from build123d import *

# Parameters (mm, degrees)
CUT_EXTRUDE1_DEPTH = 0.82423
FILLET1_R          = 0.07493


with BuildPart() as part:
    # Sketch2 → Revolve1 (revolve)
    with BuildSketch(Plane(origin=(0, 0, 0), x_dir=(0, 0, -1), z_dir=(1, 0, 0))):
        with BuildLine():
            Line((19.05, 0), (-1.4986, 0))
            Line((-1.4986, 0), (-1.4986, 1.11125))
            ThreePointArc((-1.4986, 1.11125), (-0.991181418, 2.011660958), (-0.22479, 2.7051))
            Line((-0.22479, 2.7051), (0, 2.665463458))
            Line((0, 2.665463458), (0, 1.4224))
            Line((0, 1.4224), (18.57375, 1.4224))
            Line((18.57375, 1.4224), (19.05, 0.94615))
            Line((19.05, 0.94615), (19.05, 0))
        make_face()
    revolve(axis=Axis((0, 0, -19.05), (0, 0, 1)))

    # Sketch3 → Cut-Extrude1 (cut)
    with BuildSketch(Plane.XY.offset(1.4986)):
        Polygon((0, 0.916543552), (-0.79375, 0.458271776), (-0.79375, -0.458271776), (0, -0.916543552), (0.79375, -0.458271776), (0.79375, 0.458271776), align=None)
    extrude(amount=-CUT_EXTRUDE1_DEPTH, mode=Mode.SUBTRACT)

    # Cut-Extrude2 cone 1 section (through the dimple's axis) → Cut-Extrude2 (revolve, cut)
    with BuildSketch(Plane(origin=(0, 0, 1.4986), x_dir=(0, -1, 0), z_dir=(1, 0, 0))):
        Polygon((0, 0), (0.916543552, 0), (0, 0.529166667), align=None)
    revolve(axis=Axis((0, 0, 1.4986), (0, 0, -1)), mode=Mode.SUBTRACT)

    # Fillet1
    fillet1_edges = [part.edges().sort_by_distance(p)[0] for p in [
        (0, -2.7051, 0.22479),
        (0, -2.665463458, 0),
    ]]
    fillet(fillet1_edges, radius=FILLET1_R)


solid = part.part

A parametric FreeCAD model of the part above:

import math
import FreeCAD as App
import Part
import Sketcher

V = App.Vector
Q = App.Units.Quantity


def edges_at(feature, points):
    """Names of the edges that pass closest to the given points."""
    edges = feature.Shape.Edges
    near = lambda p: min(range(len(edges)), key=lambda i: edges[i].distToShape(Part.Vertex(*p))[0])
    return sorted({f"Edge{near(p) + 1}" for p in points})

doc = App.newDocument("Part")
params = doc.addObject("Spreadsheet::Sheet", "Params")
for row, (alias, value) in enumerate([
    ("sketch1_height", "0.809 in"),
    ("revolution_angle", "360 deg"),
    ("pocket1_length", "0.82423 mm"),
    ("groove_angle", "360 deg"),
    ("fillet_radius", "0.07493 mm"),
], start=1):
    params.set(f"A{row}", alias)
    params.set(f"B{row}", "=" + value)
    params.setAlias(f"B{row}", alias)

body = doc.addObject("PartDesign::Body", "Body")

sketch1 = doc.addObject("Sketcher::SketchObject", "Sketch")
body.addObject(sketch1)
sketch1.AttachmentSupport = (doc.YZ_Plane, [""])
sketch1.MapMode = "FlatFace"
sketch1.addGeometry([
    Part.LineSegment(V(0, 1.5, 0), V(0, -19.05, 0)),
    Part.LineSegment(V(0, -19.05, 0), V(0.95, -19.05, 0)),
    Part.LineSegment(V(0.95, -19.05, 0), V(1.42, -18.57, 0)),
    Part.LineSegment(V(1.42, -18.57, 0), V(1.42, 0, 0)),
    Part.LineSegment(V(1.42, 0, 0), V(2.67, 0, 0)),
    Part.LineSegment(V(2.67, 0, 0), V(2.71, 0.22, 0)),
    Part.ArcOfCircle(Part.Circle(V(0, -1.53, 0), V(0, 0, 1), 3.22), math.radians(33), math.radians(70)),
    Part.LineSegment(V(1.11, 1.5, 0), V(0, 1.5, 0)),
], False)
sketch1.addConstraint([
    Sketcher.Constraint("Coincident", 0, 2, 1, 1),
    Sketcher.Constraint("Coincident", 1, 2, 2, 1),
    Sketcher.Constraint("Coincident", 2, 2, 3, 1),
    Sketcher.Constraint("Coincident", 3, 2, 4, 1),
    Sketcher.Constraint("Coincident", 4, 2, 5, 1),
    Sketcher.Constraint("Coincident", 5, 2, 6, 1),
    Sketcher.Constraint("Coincident", 6, 2, 7, 1),
    Sketcher.Constraint("Coincident", 7, 2, 0, 1),
    Sketcher.Constraint("Vertical", 0),
    Sketcher.Constraint("Horizontal", 1),
    Sketcher.Constraint("Vertical", 3),
    Sketcher.Constraint("Horizontal", 4),
    Sketcher.Constraint("Horizontal", 7),
    Sketcher.Constraint("PointOnObject", 6, 3, -2),
    Sketcher.Constraint("PointOnObject", 0, 2, -2),
    Sketcher.Constraint("PointOnObject", 3, 2, -1),
    Sketcher.Constraint("Angle", 2, Q("45 deg")),
    Sketcher.Constraint("Angle", 5, Q("80 deg")),
    Sketcher.Constraint("DistanceY", 0, 2, 0, 1, Q("0.809 in")),
    Sketcher.Constraint("DistanceY", 0, 2, -1, 1, Q("0.75 in")),
    Sketcher.Constraint("DistanceX", -1, 1, 2, 2, Q("0.056 in")),
    Sketcher.Constraint("DistanceX", -1, 1, 5, 2, Q("0.1065 in")),
    Sketcher.Constraint("Radius", 6, Q("3.222187 mm")),
    Sketcher.Constraint("DistanceY", 2, 2, 5, 2, Q("0.7401 in")),
    Sketcher.Constraint("DistanceX", 1, 1, 1, 2, Q("0.94615 mm")),
])
sketch1.setExpression("Constraints[18]", "Params.sketch1_height")
revolution = doc.addObject("PartDesign::Revolution", "Revolution")
body.addObject(revolution)
revolution.Profile = sketch1
revolution.ReferenceAxis = (sketch1, ["V_Axis"])
revolution.setExpression("Angle", "Params.revolution_angle")

sketch2 = doc.addObject("Sketcher::SketchObject", "Sketch001")
body.addObject(sketch2)
sketch2.AttachmentSupport = (doc.XY_Plane, [""])
sketch2.MapMode = "FlatFace"
sketch2.AttachmentOffset = App.Placement(V(0, 0, 0.059 * 25.4), App.Rotation())
sketch2.addGeometry([
    Part.LineSegment(V(0, 0.9, 0), V(-0.8, 0.5, 0)),
    Part.LineSegment(V(-0.8, 0.5, 0), V(-0.8, -0.5, 0)),
    Part.LineSegment(V(-0.8, -0.5, 0), V(0, -0.9, 0)),
    Part.LineSegment(V(0, -0.9, 0), V(0.8, -0.5, 0)),
    Part.LineSegment(V(0.8, -0.5, 0), V(0.8, 0.5, 0)),
    Part.LineSegment(V(0.8, 0.5, 0), V(0, 0.9, 0)),
], False)
sketch2.addConstraint([
    Sketcher.Constraint("Coincident", 0, 2, 1, 1),
    Sketcher.Constraint("Coincident", 1, 2, 2, 1),
    Sketcher.Constraint("Coincident", 2, 2, 3, 1),
    Sketcher.Constraint("Coincident", 3, 2, 4, 1),
    Sketcher.Constraint("Coincident", 4, 2, 5, 1),
    Sketcher.Constraint("Coincident", 5, 2, 0, 1),
    Sketcher.Constraint("Vertical", 1),
    Sketcher.Constraint("Vertical", 4),
    Sketcher.Constraint("Symmetric", 0, 2, 3, 2, -1, 1),
    Sketcher.Constraint("Symmetric", 2, 2, 5, 2, -1, 1),
    Sketcher.Constraint("PointOnObject", 2, 2, -2),
    Sketcher.Constraint("Parallel", 2, 5),
    Sketcher.Constraint("Horizontal", 1, 2, 3, 2),
    Sketcher.Constraint("Angle", 0, Q("-150 deg")),
    Sketcher.Constraint("DistanceX", 0, 2, -1, 1, Q("0.03125 in")),
    Sketcher.Constraint("DistanceY", 1, 2, 1, 1, Q("0.916544 mm")),
])
pocket1 = doc.addObject("PartDesign::Pocket", "Pocket")
body.addObject(pocket1)
pocket1.Profile = sketch2
pocket1.setExpression("Length", "Params.pocket1_length")

sketch3 = doc.addObject("Sketcher::SketchObject", "Sketch002")
body.addObject(sketch3)
sketch3.AttachmentSupport = (doc.YZ_Plane, [""])
sketch3.MapMode = "FlatFace"
sketch3.addGeometry([
    Part.LineSegment(V(0, 1.5, 0), V(-0.9, 1.5, 0)),
    Part.LineSegment(V(-0.9, 1.5, 0), V(0, 1, 0)),
    Part.LineSegment(V(0, 1, 0), V(0, 1.5, 0)),
], False)
sketch3.addConstraint([
    Sketcher.Constraint("Coincident", 0, 2, 1, 1),
    Sketcher.Constraint("Coincident", 1, 2, 2, 1),
    Sketcher.Constraint("Coincident", 2, 2, 0, 1),
    Sketcher.Constraint("Horizontal", 0),
    Sketcher.Constraint("Vertical", 2),
    Sketcher.Constraint("PointOnObject", 1, 2, -2),
    Sketcher.Constraint("Angle", 1, Q("-30 deg")),
    Sketcher.Constraint("DistanceY", -1, 1, 0, 2, Q("0.059 in")),
    Sketcher.Constraint("DistanceX", 0, 2, 0, 1, Q("0.916544 mm")),
])
groove = doc.addObject("PartDesign::Groove", "Groove")
body.addObject(groove)
groove.Profile = sketch3
groove.ReferenceAxis = (sketch3, ["V_Axis"])
groove.setExpression("Angle", "Params.groove_angle")
doc.recompute()

fillet = doc.addObject("PartDesign::Fillet", "Fillet")
body.addObject(fillet)
fillet.Base = (groove, edges_at(groove, [(0, -2.705, 0.225), (0, -2.665, 0)]))
fillet.setExpression("Radius", "Params.fillet_radius")

doc.recompute()
